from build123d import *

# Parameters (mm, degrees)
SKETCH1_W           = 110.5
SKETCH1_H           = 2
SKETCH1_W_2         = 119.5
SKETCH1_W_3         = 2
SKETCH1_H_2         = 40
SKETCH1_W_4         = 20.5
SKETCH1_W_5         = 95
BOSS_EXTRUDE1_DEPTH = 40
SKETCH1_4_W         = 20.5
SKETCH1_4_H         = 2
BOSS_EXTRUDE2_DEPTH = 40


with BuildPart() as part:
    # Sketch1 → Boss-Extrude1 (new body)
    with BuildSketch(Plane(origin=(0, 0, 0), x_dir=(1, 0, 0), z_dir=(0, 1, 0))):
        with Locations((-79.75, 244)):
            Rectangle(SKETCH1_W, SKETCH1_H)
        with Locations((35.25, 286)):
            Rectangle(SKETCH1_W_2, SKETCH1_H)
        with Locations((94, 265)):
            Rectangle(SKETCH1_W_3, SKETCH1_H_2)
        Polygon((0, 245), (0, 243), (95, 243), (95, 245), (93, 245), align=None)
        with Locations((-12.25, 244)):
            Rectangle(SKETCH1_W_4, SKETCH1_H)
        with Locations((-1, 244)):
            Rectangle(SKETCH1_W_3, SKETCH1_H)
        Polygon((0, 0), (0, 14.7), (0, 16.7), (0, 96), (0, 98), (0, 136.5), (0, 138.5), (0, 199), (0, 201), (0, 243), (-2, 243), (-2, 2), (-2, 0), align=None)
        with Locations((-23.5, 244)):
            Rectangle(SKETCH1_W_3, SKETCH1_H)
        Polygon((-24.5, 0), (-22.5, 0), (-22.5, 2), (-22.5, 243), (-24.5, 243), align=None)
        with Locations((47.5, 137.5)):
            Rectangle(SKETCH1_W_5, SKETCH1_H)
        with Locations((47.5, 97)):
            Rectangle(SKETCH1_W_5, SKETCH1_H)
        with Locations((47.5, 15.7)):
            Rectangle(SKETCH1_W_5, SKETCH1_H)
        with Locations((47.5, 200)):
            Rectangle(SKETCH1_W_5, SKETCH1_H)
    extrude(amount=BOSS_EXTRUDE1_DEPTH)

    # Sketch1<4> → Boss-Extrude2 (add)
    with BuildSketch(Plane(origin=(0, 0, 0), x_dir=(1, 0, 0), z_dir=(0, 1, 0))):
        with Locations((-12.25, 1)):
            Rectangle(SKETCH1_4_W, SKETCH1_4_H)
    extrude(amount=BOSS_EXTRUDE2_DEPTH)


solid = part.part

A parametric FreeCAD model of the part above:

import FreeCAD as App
import Part
import Sketcher
Q = App.Units.Quantity

doc = App.newDocument("Part")
body = doc.addObject("PartDesign::Body", "Body")

# Sketch on XZ plane
sketch1 = doc.addObject("Sketcher::SketchObject", "Sketch")
body.addObject(sketch1)
sketch1.AttachmentSupport = (doc.XZ_Plane, [""])
sketch1.MapMode = "FlatFace"
sketch1.addGeometry([
    Part.LineSegment(App.Vector(-135, -245, 0), App.Vector(-135, -243, 0)),  # 0
    Part.LineSegment(App.Vector(-135, -243, 0), App.Vector(-24.5, -243, 0)),  # 1
    Part.LineSegment(App.Vector(-24.5, -243, 0), App.Vector(-24.5, 0, 0)),  # 2
    Part.LineSegment(App.Vector(-24.5, 0, 0), App.Vector(-22.5, 0, 0)),  # 3
    Part.LineSegment(App.Vector(-22.5, 0, 0), App.Vector(-22.5, -243, 0)),  # 4
    Part.LineSegment(App.Vector(-22.5, -243, 0), App.Vector(-2, -243, 0)),  # 5
    Part.LineSegment(App.Vector(-2, -243, 0), App.Vector(-2, 0, 0)),  # 6
    Part.LineSegment(App.Vector(-2, 0, 0), App.Vector(0, 0, 0)),  # 7
    Part.LineSegment(App.Vector(0, 0, 0), App.Vector(0, -14.7, 0)),  # 8
    Part.LineSegment(App.Vector(0, -14.7, 0), App.Vector(95, -14.7, 0)),  # 9
    Part.LineSegment(App.Vector(95, -14.7, 0), App.Vector(95, -16.7, 0)),  # 10
    Part.LineSegment(App.Vector(95, -16.7, 0), App.Vector(0, -16.7, 0)),  # 11
    Part.LineSegment(App.Vector(0, -16.7, 0), App.Vector(0, -96, 0)),  # 12
    Part.LineSegment(App.Vector(0, -96, 0), App.Vector(95, -96, 0)),  # 13
    Part.LineSegment(App.Vector(95, -96, 0), App.Vector(95, -98, 0)),  # 14
    Part.LineSegment(App.Vector(95, -98, 0), App.Vector(0, -98, 0)),  # 15
    Part.LineSegment(App.Vector(0, -98, 0), App.Vector(0, -136.5, 0)),  # 16
    Part.LineSegment(App.Vector(0, -136.5, 0), App.Vector(95, -136.5, 0)),  # 17
    Part.LineSegment(App.Vector(95, -136.5, 0), App.Vector(95, -138.5, 0)),  # 18
    Part.LineSegment(App.Vector(95, -138.5, 0), App.Vector(0, -138.5, 0)),  # 19
    Part.LineSegment(App.Vector(0, -138.5, 0), App.Vector(0, -199, 0)),  # 20
    Part.LineSegment(App.Vector(0, -199, 0), App.Vector(95, -199, 0)),  # 21
    Part.LineSegment(App.Vector(95, -199, 0), App.Vector(95, -201, 0)),  # 22
    Part.LineSegment(App.Vector(95, -201, 0), App.Vector(0, -201, 0)),  # 23
    Part.LineSegment(App.Vector(0, -201, 0), App.Vector(0, -243, 0)),  # 24
    Part.LineSegment(App.Vector(0, -243, 0), App.Vector(95, -243, 0)),  # 25
    Part.LineSegment(App.Vector(95, -243, 0), App.Vector(95, -287, 0)),  # 26
    Part.LineSegment(App.Vector(95, -287, 0), App.Vector(-24.5, -287, 0)),  # 27
    Part.LineSegment(App.Vector(-24.5, -287, 0), App.Vector(-24.5, -285, 0)),  # 28
    Part.LineSegment(App.Vector(-24.5, -285, 0), App.Vector(93, -285, 0)),  # 29
    Part.LineSegment(App.Vector(93, -285, 0), App.Vector(93, -245, 0)),  # 30
    Part.LineSegment(App.Vector(93, -245, 0), App.Vector(-135, -245, 0)),  # 31
], False)
sketch1.addConstraint([
    Sketcher.Constraint("Coincident", 0, 2, 1, 1),
    Sketcher.Constraint("Coincident", 1, 2, 2, 1),
    Sketcher.Constraint("Coincident", 2, 2, 3, 1),
    Sketcher.Constraint("Coincident", 3, 2, 4, 1),
    Sketcher.Constraint("Coincident", 4, 2, 5, 1),
    Sketcher.Constraint("Coincident", 5, 2, 6, 1),
    Sketcher.Constraint("Coincident", 6, 2, 7, 1),
    Sketcher.Constraint("Coincident", 7, 2, 8, 1),
    Sketcher.Constraint("Coincident", 8, 2, 9, 1),
    Sketcher.Constraint("Coincident", 9, 2, 10, 1),
    Sketcher.Constraint("Coincident", 10, 2, 11, 1),
    Sketcher.Constraint("Coincident", 11, 2, 12, 1),
    Sketcher.Constraint("Coincident", 12, 2, 13, 1),
    Sketcher.Constraint("Coincident", 13, 2, 14, 1),
    Sketcher.Constraint("Coincident", 14, 2, 15, 1),
    Sketcher.Constraint("Coincident", 15, 2, 16, 1),
    Sketcher.Constraint("Coincident", 16, 2, 17, 1),
    Sketcher.Constraint("Coincident", 17, 2, 18, 1),
    Sketcher.Constraint("Coincident", 18, 2, 19, 1),
    Sketcher.Constraint("Coincident", 19, 2, 20, 1),
    Sketcher.Constraint("Coincident", 20, 2, 21, 1),
    Sketcher.Constraint("Coincident", 21, 2, 22, 1),
    Sketcher.Constraint("Coincident", 22, 2, 23, 1),
    Sketcher.Constraint("Coincident", 23, 2, 24, 1),
    Sketcher.Constraint("Coincident", 24, 2, 25, 1),
    Sketcher.Constraint("Coincident", 25, 2, 26, 1),
    Sketcher.Constraint("Coincident", 26, 2, 27, 1),
    Sketcher.Constraint("Coincident", 27, 2, 28, 1),
    Sketcher.Constraint("Coincident", 28, 2, 29, 1),
    Sketcher.Constraint("Coincident", 29, 2, 30, 1),
    Sketcher.Constraint("Coincident", 30, 2, 31, 1),
    Sketcher.Constraint("Coincident", 31, 2, 0, 1),
    Sketcher.Constraint("Vertical", 0),
    Sketcher.Constraint("Horizontal", 1),
    Sketcher.Constraint("Vertical", 2),
    Sketcher.Constraint("Horizontal", 3),
    Sketcher.Constraint("Vertical", 4),
    Sketcher.Constraint("Horizontal", 5),
    Sketcher.Constraint("Vertical", 6),
    Sketcher.Constraint("Horizontal", 7),
    Sketcher.Constraint("Vertical", 8),
    Sketcher.Constraint("Horizontal", 9),
    Sketcher.Constraint("Vertical", 10),
    Sketcher.Constraint("Horizontal", 11),
    Sketcher.Constraint("Vertical", 12),
    Sketcher.Constraint("Horizontal", 13),
    Sketcher.Constraint("Vertical", 14),
    Sketcher.Constraint("Horizontal", 15),
    Sketcher.Constraint("Vertical", 16),
    Sketcher.Constraint("Horizontal", 17),
    Sketcher.Constraint("Vertical", 18),
    Sketcher.Constraint("Horizontal", 19),
    Sketcher.Constraint("Vertical", 20),
    Sketcher.Constraint("Horizontal", 21),
    Sketcher.Constraint("Vertical", 22),
    Sketcher.Constraint("Horizontal", 23),
    Sketcher.Constraint("Vertical", 24),
    Sketcher.Constraint("Horizontal", 25),
    Sketcher.Constraint("Vertical", 26),
    Sketcher.Constraint("Horizontal", 27),
    Sketcher.Constraint("Vertical", 28),
    Sketcher.Constraint("Horizontal", 29),
    Sketcher.Constraint("Vertical", 30),
    Sketcher.Constraint("Horizontal", 31),
    Sketcher.Constraint("Coincident", 7, 2, -1, 1),
    Sketcher.Constraint("PointOnObject", 2, 2, -1),
    Sketcher.Constraint("PointOnObject", 11, 2, -2),
    Sketcher.Constraint("PointOnObject", 15, 2, -2),
    Sketcher.Constraint("PointOnObject", 19, 2, -2),
    Sketcher.Constraint("PointOnObject", 23, 2, -2),
    Sketcher.Constraint("Horizontal", 1, 2, 4, 2),
    Sketcher.Constraint("Horizontal", 5, 2, 24, 2),
    Sketcher.Constraint("Vertical", 10, 2, 13, 2),
    Sketcher.Constraint("Vertical", 14, 2, 17, 2),
    Sketcher.Constraint("Vertical", 18, 2, 21, 2),
    Sketcher.Constraint("Vertical", 22, 2, 25, 2),
    Sketcher.Constraint("Vertical", 2, 2, 27, 2),
    Sketcher.Constraint("Equal", 3, 7),
    Sketcher.Constraint("Equal", 7, 0),
    Sketcher.Constraint("Equal", 0, 10),
    Sketcher.Constraint("Equal", 10, 14),
    Sketcher.Constraint("Equal", 14, 18),
    Sketcher.Constraint("Equal", 18, 22),
    Sketcher.Constraint("Equal", 22, 28),
    Sketcher.Constraint("DistanceX", 3, 1, 3, 2, Q("2 mm")),
    Sketcher.Constraint("DistanceX", 9, 1, 9, 2, Q("95 mm")),
    Sketcher.Constraint("DistanceX", 31, 2, 31, 1, Q("228 mm")),
    Sketcher.Constraint("DistanceY", 2, 1, 2, 2, Q("243 mm")),
    Sketcher.Constraint("DistanceY", 24, 2, 24, 1, Q("42 mm")),
    Sketcher.Constraint("DistanceY", 26, 2, 26, 1, Q("44 mm")),
    Sketcher.Constraint("DistanceX", 1, 1, 1, 2, Q("110.5 mm")),
    Sketcher.Constraint("DistanceX", 5, 1, 5, 2, Q("20.5 mm")),
    Sketcher.Constraint("DistanceY", 8, 2, 8, 1, Q("14.7 mm")),
    Sketcher.Constraint("DistanceY", 12, 2, 12, 1, Q("79.3 mm")),
    Sketcher.Constraint("DistanceY", 16, 2, 16, 1, Q("38.5 mm")),
])
pad1 = doc.addObject("PartDesign::Pad", "Pad")
body.addObject(pad1)
pad1.Profile = sketch1
pad1.Length = 40
pad1.Reversed = True

# Sketch on XZ plane
sketch2 = doc.addObject("Sketcher::SketchObject", "Sketch001")
body.addObject(sketch2)
sketch2.AttachmentSupport = (doc.XZ_Plane, [""])
sketch2.MapMode = "FlatFace"
sketch2.addGeometry([
    Part.LineSegment(App.Vector(-22.5, -2, 0), App.Vector(-22.5, 0, 0)),
    Part.LineSegment(App.Vector(-22.5, 0, 0), App.Vector(-2, 0, 0)),
    Part.LineSegment(App.Vector(-2, 0, 0), App.Vector(-2, -2, 0)),
    Part.LineSegment(App.Vector(-2, -2, 0), App.Vector(-22.5, -2, 0)),
], False)
sketch2.addConstraint([
    Sketcher.Constraint("Coincident", 0, 2, 1, 1),
    Sketcher.Constraint("Coincident", 1, 2, 2, 1),
    Sketcher.Constraint("Coincident", 2, 2, 3, 1),
    Sketcher.Constraint("Coincident", 3, 2, 0, 1),
    Sketcher.Constraint("Vertical", 0),
    Sketcher.Constraint("Horizontal", 1),
    Sketcher.Constraint("Vertical", 2),
    Sketcher.Constraint("Horizontal", 3),
    Sketcher.Constraint("PointOnObject", 0, 2, -1),
    Sketcher.Constraint("DistanceY", 0, 1, 0, 2, Q("2 mm")),
    Sketcher.Constraint("DistanceX", 1, 1, 1, 2, Q("20.5 mm")),
    Sketcher.Constraint("DistanceX", 1, 2, -1, 1, Q("2 mm")),
])
pad2 = doc.addObject("PartDesign::Pad", "Pad001")
body.addObject(pad2)
pad2.Profile = sketch2
pad2.Length = 40
pad2.Reversed = True

doc.recompute()
